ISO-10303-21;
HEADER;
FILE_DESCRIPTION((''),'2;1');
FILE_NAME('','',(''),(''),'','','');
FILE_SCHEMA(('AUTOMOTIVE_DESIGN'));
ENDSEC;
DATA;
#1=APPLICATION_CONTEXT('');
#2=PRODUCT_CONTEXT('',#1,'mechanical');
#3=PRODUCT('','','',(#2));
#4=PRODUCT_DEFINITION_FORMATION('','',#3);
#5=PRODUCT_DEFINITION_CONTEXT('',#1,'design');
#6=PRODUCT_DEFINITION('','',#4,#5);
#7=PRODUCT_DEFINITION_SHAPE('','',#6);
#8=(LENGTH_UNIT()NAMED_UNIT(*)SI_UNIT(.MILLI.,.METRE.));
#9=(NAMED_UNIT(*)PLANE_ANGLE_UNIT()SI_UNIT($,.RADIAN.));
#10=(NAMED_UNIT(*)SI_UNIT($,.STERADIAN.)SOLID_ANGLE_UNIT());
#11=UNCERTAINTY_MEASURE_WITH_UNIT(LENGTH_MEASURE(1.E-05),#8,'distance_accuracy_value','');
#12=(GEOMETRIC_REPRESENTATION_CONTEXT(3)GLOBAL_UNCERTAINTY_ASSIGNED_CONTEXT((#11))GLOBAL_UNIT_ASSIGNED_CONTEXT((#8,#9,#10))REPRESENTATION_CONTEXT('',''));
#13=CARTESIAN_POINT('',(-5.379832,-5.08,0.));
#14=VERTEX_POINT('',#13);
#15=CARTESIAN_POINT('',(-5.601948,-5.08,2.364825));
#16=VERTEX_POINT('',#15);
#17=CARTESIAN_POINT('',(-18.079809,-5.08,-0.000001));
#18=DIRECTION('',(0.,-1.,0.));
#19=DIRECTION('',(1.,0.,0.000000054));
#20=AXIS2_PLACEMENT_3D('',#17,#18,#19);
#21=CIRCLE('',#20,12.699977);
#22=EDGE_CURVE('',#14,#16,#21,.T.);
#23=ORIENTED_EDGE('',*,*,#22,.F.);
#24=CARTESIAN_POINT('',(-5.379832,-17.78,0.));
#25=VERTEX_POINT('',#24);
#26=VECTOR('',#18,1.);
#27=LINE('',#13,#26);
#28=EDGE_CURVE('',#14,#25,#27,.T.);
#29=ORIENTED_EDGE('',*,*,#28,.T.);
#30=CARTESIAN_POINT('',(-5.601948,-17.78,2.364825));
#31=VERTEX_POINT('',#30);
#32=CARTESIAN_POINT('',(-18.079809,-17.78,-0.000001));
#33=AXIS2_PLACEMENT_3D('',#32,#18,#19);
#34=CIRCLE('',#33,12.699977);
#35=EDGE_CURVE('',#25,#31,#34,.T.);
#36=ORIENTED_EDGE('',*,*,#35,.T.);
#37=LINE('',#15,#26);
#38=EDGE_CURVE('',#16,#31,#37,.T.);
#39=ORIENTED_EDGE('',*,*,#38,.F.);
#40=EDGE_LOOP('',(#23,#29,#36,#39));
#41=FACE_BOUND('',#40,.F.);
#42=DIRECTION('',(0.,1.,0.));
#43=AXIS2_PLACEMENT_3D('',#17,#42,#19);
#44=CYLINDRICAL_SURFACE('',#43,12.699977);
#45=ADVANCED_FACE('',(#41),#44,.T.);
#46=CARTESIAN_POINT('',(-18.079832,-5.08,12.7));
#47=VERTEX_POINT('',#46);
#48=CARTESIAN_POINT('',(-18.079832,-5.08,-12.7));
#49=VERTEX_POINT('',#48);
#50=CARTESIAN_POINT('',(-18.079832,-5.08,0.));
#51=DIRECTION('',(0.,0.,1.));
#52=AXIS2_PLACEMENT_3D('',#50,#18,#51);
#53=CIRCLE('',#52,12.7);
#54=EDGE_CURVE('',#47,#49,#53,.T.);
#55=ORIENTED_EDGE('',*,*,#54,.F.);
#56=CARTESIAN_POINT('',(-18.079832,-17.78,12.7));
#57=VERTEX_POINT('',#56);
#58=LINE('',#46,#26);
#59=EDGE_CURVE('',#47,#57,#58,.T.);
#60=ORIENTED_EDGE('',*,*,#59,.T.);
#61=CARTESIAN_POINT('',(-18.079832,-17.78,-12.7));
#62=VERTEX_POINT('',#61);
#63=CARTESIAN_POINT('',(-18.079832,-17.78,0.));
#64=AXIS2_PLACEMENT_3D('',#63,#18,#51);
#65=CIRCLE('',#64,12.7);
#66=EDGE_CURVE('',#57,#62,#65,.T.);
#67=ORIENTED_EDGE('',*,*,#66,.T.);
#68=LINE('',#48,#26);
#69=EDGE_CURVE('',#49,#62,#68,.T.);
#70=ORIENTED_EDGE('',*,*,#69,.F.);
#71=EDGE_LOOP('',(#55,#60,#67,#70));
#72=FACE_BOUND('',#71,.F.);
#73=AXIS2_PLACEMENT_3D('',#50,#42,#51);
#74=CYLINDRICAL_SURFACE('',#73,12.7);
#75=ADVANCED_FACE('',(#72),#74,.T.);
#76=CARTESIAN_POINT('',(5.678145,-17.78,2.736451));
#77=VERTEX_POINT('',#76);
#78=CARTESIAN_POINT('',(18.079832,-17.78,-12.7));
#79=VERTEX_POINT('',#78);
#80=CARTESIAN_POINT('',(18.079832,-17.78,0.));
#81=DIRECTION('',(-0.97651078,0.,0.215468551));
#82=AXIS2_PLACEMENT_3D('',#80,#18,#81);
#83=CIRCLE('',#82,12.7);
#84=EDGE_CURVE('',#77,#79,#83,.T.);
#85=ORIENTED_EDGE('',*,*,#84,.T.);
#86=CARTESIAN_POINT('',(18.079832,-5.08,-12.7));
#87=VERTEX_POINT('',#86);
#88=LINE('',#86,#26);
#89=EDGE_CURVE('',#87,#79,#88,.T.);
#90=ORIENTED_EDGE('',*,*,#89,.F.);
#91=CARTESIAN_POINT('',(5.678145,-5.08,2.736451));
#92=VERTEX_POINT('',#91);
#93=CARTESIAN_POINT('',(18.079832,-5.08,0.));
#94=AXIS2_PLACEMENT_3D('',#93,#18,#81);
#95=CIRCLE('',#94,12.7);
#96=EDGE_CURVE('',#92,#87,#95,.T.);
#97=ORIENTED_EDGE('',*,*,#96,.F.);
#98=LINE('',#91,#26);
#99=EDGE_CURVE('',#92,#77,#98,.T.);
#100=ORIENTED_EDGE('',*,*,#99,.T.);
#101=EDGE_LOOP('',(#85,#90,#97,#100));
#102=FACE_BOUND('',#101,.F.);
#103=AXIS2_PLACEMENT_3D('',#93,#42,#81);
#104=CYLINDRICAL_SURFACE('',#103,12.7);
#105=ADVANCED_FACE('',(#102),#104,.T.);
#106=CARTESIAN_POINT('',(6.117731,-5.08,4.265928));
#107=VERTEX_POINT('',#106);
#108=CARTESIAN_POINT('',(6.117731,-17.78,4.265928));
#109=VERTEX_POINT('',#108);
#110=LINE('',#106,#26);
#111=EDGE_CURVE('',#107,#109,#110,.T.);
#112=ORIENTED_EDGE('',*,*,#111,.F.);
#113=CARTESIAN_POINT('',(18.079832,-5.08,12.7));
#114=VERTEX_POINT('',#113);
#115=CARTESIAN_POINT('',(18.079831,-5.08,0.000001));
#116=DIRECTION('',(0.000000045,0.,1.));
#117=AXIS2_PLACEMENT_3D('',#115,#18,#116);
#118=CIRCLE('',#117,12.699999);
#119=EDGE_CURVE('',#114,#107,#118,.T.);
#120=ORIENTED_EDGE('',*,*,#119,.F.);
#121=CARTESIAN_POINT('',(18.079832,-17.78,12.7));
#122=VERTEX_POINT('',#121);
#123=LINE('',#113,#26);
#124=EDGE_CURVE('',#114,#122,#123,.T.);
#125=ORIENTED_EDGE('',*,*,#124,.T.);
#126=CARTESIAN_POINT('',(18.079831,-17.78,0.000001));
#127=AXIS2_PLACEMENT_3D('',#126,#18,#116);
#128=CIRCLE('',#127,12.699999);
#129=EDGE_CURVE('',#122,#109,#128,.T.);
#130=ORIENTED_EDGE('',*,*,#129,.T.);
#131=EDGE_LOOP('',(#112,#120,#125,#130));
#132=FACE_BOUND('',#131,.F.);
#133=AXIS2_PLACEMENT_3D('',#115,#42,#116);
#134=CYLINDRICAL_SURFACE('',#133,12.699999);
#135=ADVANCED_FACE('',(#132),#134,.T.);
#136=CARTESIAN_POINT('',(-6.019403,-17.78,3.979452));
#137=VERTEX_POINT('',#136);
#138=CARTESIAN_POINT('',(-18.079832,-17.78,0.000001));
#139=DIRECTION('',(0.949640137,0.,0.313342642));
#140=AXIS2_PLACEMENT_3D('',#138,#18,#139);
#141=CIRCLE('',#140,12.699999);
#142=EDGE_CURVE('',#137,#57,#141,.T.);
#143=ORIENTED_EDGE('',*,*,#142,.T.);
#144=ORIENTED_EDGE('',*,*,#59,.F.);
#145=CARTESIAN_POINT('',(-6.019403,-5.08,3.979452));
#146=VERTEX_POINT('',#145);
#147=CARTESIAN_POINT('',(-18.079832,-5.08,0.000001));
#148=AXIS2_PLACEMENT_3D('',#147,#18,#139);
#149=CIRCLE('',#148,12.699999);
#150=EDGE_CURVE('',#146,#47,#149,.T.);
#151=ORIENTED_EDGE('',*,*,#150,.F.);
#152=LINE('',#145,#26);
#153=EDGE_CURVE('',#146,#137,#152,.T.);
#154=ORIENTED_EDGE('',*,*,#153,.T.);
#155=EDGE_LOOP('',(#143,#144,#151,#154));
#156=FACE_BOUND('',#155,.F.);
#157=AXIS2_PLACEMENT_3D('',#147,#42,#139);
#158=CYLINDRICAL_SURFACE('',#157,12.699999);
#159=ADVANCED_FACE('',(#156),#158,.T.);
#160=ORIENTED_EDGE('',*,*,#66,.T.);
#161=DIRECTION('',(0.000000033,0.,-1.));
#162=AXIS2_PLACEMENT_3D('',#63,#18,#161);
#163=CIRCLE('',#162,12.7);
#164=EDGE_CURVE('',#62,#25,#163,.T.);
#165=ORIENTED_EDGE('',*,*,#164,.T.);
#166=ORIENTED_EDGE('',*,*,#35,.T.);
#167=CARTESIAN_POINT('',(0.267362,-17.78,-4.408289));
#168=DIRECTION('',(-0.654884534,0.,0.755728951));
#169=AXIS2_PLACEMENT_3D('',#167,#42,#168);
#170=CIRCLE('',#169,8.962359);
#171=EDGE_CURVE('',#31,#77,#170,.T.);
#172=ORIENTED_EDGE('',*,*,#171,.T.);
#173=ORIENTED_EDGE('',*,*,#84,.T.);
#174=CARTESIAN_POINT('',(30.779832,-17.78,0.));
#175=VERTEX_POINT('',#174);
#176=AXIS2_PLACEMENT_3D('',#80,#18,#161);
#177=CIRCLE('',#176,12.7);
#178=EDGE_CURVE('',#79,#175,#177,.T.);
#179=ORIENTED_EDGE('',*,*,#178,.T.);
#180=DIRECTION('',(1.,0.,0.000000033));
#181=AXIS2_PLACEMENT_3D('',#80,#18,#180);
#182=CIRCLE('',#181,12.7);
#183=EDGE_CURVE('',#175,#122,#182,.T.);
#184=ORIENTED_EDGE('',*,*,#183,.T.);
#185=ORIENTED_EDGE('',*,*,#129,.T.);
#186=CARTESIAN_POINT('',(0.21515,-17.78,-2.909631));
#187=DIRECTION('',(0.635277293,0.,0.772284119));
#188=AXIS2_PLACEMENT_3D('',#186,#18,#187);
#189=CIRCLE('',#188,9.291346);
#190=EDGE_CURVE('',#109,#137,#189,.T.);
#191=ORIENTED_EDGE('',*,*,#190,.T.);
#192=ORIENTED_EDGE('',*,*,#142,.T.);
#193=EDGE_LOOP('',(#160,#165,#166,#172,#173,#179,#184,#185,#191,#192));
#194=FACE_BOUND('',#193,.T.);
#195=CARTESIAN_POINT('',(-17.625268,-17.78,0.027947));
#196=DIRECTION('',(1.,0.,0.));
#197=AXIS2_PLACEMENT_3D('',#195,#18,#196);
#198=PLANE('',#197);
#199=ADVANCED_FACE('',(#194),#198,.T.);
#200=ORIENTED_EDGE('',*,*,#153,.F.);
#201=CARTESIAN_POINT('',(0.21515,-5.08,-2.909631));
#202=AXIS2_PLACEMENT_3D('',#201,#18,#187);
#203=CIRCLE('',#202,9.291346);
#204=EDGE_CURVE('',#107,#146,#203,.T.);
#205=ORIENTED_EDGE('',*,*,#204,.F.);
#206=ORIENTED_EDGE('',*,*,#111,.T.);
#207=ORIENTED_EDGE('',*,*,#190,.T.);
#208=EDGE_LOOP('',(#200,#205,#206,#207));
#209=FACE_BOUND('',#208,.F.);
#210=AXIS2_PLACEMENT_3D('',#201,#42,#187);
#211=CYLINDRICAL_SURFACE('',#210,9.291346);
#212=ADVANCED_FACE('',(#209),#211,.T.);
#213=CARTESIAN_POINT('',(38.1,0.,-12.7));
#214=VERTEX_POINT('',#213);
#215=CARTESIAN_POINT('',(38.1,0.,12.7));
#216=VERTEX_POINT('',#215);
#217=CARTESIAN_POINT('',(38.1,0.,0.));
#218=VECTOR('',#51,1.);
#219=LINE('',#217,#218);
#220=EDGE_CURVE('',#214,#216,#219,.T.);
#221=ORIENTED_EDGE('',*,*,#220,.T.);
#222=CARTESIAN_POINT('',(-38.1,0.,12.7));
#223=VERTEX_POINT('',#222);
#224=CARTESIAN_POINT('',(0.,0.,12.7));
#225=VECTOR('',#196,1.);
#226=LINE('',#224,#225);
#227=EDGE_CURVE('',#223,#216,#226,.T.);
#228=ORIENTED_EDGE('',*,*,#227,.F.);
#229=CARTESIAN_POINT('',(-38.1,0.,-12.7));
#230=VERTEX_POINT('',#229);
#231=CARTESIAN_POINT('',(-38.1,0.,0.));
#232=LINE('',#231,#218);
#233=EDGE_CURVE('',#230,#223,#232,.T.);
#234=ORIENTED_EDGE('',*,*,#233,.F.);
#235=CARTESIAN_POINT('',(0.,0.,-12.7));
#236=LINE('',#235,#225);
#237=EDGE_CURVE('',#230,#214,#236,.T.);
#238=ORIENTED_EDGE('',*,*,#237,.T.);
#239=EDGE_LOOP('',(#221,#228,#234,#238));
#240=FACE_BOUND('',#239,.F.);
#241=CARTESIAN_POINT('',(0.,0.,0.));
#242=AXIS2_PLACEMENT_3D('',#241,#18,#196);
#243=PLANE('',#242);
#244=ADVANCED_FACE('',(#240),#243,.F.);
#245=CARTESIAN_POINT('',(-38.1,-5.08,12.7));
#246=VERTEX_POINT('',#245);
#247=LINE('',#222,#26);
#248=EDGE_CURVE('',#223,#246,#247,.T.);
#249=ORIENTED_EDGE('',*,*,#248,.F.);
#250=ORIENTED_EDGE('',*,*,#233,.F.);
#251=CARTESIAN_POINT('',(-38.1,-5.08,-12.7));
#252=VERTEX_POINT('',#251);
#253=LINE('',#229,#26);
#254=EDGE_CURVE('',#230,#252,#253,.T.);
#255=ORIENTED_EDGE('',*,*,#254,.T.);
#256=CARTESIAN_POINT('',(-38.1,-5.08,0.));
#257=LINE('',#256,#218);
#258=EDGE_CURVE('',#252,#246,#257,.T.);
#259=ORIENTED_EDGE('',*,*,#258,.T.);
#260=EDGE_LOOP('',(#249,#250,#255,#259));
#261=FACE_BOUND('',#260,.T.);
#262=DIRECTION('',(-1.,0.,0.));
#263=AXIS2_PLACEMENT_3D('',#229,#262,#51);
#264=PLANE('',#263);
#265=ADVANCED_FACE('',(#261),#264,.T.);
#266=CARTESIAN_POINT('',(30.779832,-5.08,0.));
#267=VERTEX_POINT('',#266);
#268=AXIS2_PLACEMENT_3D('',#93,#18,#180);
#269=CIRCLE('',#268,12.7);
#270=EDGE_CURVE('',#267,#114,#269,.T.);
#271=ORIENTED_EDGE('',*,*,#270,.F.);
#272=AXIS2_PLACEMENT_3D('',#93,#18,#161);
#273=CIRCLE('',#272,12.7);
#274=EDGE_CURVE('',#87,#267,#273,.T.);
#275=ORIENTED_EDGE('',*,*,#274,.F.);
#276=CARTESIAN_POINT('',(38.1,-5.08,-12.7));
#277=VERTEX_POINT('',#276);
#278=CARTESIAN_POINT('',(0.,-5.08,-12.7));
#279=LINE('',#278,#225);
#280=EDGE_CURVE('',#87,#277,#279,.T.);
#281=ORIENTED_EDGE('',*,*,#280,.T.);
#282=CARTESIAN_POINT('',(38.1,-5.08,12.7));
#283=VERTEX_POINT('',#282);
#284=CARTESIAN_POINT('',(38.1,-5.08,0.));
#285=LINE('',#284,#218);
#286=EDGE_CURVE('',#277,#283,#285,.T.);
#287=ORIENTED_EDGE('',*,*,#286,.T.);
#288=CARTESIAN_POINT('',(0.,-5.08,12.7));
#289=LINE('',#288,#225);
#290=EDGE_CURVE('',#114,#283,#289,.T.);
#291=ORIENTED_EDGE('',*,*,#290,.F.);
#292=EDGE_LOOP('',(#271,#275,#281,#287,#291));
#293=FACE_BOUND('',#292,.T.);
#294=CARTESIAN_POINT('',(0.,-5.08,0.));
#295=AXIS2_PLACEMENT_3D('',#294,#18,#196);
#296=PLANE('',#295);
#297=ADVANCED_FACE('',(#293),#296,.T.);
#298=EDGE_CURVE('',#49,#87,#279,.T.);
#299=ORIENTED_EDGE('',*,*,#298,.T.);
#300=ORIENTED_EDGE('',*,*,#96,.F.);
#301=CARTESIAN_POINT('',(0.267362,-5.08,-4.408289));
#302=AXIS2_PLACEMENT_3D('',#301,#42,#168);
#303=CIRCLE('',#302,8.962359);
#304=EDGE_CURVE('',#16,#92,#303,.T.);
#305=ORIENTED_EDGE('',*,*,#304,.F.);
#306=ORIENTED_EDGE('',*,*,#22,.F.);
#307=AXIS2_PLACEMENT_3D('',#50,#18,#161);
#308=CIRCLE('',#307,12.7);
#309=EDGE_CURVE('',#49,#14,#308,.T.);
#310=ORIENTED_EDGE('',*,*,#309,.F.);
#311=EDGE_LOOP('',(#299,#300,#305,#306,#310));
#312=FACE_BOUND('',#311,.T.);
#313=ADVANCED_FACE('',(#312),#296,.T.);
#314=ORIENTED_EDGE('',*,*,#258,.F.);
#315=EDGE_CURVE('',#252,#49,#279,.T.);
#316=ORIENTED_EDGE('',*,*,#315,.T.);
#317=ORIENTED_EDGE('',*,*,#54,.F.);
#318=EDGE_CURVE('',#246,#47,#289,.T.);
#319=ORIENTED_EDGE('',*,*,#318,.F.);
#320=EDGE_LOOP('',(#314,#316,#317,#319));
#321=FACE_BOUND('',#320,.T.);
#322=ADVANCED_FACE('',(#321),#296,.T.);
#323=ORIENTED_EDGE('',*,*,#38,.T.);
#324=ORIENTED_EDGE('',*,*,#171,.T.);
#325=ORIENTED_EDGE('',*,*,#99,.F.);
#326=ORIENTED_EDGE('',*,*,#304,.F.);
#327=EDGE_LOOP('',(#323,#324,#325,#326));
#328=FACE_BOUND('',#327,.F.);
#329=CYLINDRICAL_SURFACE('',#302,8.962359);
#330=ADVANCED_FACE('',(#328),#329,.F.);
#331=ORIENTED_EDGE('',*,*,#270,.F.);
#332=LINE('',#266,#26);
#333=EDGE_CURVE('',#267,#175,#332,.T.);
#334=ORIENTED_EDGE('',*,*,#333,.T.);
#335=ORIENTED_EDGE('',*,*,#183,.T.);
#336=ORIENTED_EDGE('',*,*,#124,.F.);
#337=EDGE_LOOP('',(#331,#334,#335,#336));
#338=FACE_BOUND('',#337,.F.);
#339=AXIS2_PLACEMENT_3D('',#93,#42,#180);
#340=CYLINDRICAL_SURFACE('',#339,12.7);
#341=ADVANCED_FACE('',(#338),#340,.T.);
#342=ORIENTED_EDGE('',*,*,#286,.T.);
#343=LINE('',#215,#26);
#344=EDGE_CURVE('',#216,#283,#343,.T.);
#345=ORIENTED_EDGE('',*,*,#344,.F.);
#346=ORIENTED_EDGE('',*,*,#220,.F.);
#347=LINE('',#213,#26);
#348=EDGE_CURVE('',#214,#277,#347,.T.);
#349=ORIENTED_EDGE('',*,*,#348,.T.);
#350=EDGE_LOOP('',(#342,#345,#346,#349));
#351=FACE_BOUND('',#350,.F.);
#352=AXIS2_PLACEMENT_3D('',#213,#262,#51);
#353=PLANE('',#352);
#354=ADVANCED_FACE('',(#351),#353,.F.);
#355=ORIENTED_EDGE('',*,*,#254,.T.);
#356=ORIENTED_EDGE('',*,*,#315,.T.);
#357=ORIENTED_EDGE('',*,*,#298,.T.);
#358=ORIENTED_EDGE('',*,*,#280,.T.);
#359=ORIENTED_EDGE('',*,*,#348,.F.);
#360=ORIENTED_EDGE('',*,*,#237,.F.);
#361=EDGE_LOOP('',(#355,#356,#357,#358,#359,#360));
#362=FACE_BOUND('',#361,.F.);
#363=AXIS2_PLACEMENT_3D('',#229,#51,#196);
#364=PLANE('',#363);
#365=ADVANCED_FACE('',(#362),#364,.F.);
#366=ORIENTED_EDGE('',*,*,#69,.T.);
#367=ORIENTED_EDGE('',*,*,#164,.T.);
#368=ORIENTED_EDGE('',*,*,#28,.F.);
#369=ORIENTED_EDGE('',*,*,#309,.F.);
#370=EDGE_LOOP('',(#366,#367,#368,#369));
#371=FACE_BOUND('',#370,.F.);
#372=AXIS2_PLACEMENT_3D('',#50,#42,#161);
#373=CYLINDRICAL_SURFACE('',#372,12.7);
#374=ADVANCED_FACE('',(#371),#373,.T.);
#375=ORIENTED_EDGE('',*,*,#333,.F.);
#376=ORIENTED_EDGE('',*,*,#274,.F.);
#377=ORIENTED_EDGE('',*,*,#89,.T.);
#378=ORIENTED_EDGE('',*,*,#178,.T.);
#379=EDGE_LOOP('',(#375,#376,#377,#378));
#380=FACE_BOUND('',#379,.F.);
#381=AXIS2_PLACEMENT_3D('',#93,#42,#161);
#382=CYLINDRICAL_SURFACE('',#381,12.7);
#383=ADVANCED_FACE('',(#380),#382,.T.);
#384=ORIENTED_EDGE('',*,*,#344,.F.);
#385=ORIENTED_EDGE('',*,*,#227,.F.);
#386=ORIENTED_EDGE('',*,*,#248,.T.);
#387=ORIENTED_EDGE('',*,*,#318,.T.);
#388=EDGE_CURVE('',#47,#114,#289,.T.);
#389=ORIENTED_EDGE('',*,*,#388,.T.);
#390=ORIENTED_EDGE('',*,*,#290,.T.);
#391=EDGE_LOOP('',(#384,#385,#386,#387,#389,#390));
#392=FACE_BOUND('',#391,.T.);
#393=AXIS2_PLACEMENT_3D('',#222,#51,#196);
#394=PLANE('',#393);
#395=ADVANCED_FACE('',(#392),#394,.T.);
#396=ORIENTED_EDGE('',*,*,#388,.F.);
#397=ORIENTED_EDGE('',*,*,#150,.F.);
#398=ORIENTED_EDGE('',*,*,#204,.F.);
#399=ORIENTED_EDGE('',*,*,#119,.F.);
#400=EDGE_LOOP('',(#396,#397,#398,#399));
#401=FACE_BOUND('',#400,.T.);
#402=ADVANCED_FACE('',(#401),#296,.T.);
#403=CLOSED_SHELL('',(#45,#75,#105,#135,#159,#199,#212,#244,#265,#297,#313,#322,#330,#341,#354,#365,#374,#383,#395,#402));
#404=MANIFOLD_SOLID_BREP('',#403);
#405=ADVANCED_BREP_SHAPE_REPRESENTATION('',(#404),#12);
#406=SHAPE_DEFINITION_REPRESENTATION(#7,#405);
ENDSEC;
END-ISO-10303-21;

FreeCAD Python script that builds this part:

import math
import FreeCAD as App
import Part
import Sketcher

V = App.Vector
Q = App.Units.Quantity


def add_polygon(sketch, points):
    """Adds a closed chain of lines whose ends are joined by coincident constraints."""
    first, n = sketch.GeometryCount, len(points)
    for a, b in zip(points, points[1:] + points[:1]):
        sketch.addGeometry(Part.LineSegment(App.Vector(*a, 0), App.Vector(*b, 0)), False)
    for i in range(n):
        sketch.addConstraint(Sketcher.Constraint("Coincident", first + i, 2, first + (i + 1) % n, 1))

doc = App.newDocument("Part")
body = doc.addObject("PartDesign::Body", "Body")

# Sketch on XZ plane
sketch1 = body.newObject("Sketcher::SketchObject", "Sketch")
sketch1.AttachmentSupport = (doc.getObject("XZ_Plane"), [""])
sketch1.MapMode = "FlatFace"
add_polygon(sketch1, [(-38, 13), (-38, -13), (38, -13), (38, 13)])  # lines 0-3
sketch1.addConstraint([
    Sketcher.Constraint("Vertical", 0),
    Sketcher.Constraint("Horizontal", 1),
    Sketcher.Constraint("Vertical", 2),
    Sketcher.Constraint("Horizontal", 3),
    Sketcher.Constraint("Symmetric", 0, 2, 2, 2, -1, 1),
    Sketcher.Constraint("DistanceX", 1, 1, 1, 2, Q("3 in")),
    Sketcher.Constraint("DistanceY", 0, 2, 0, 1, Q("1 in")),
])
pad1 = body.newObject("PartDesign::Pad", "Pad")
pad1.Profile = sketch1
pad1.Length = Q("0.2 in")

# Sketch on XZ plane
sketch2 = body.newObject("Sketcher::SketchObject", "Sketch001")
sketch2.AttachmentSupport = (doc.getObject("XZ_Plane"), [""])
sketch2.MapMode = "FlatFace"
sketch2.AttachmentOffset = App.Placement(V(0, 0, 0.2 * 25.4), App.Rotation())
sketch2.addGeometry([
    Part.ArcOfCircle(Part.Circle(V(-18.1, 0, 0), V(0, 0, 1), 12.7), math.radians(-90), math.radians(0)),  # 0
    Part.ArcOfCircle(Part.Circle(V(-18.1, 0, 0), V(0, 0, 1), 12.7), math.radians(0), math.radians(10.73)),  # 1
    Part.ArcOfCircle(Part.Circle(V(0.3, -4.4, 0), V(0, 0, 1), 9), math.radians(53), math.radians(131)),  # 2
    Part.ArcOfCircle(Part.Circle(V(18.1, 0, 0), V(0, 0, 1), 12.7), math.radians(168), math.radians(270)),  # 3
    Part.ArcOfCircle(Part.Circle(V(18.1, 0, 0), V(0, 0, 1), 12.7), math.radians(-90), math.radians(0)),  # 4
    Part.ArcOfCircle(Part.Circle(V(18.1, 0, 0), V(0, 0, 1), 12.7), math.radians(0), math.radians(90)),  # 5
    Part.ArcOfCircle(Part.Circle(V(18.1, 0, 0), V(0, 0, 1), 12.7), math.radians(90), math.radians(160)),  # 6
    Part.ArcOfCircle(Part.Circle(V(0.2, -2.9, 0), V(0, 0, 1), 9.3), math.radians(51), math.radians(132)),  # 7
    Part.ArcOfCircle(Part.Circle(V(-18.1, 0, 0), V(0, 0, 1), 12.7), math.radians(18), math.radians(90)),  # 8
    Part.ArcOfCircle(Part.Circle(V(-18.1, 0, 0), V(0, 0, 1), 12.7), math.radians(90), math.radians(270)),  # 9
], False)
sketch2.addConstraint([
    Sketcher.Constraint("Tangent", 0, 2, 1, 1),
    Sketcher.Constraint("Coincident", 1, 2, 2, 2),
    Sketcher.Constraint("Coincident", 2, 1, 3, 1),
    Sketcher.Constraint("Tangent", 3, 2, 4, 1),
    Sketcher.Constraint("Tangent", 4, 2, 5, 1),
    Sketcher.Constraint("Tangent", 5, 2, 6, 1),
    Sketcher.Constraint("Coincident", 6, 2, 7, 1),
    Sketcher.Constraint("Coincident", 7, 2, 8, 1),
    Sketcher.Constraint("Tangent", 8, 2, 9, 1),
    Sketcher.Constraint("Tangent", 9, 2, 0, 1),
    Sketcher.Constraint("Coincident", 5, 3, 3, 3),
    Sketcher.Constraint("Equal", 0, 3),
    Sketcher.Constraint("Equal", 5, 6),
    Sketcher.Constraint("Equal", 6, 8),
    Sketcher.Constraint("Equal", 8, 9),
    Sketcher.Constraint("Symmetric", 0, 3, 3, 3, -1, 1),
    Sketcher.Constraint("Symmetric", 5, 2, 8, 2, -2),
    Sketcher.Constraint("PointOnObject", 0, 2, -1),
    Sketcher.Constraint("PointOnObject", 4, 2, -1),
    Sketcher.Constraint("Vertical", 6, 3, 3, 2),
    Sketcher.Constraint("Vertical", 3, 2, 5, 2),
    Sketcher.Constraint("Vertical", 8, 2, 9, 2),
    Sketcher.Constraint("Radius", 0, Q("0.5 in")),
    Sketcher.Constraint("Radius", 2, 8.962359),
    Sketcher.Constraint("Radius", 1, 12.699977),
    Sketcher.Constraint("Radius", 7, 9.291346),
    Sketcher.Constraint("DistanceY", 2, 1, 7, 2, 1.243001),
    Sketcher.Constraint("DistanceX", 1, 3, -1, 1, 18.079809),
    Sketcher.Constraint("DistanceY", 2, 3, -1, 1, 4.408289),
    Sketcher.Constraint("DistanceX", -1, 1, 7, 3, 0.21515),
    Sketcher.Constraint("DistanceY", 7, 3, -1, 1, 2.909631),
])
pad2 = body.newObject("PartDesign::Pad", "Pad001")
pad2.Profile = sketch2
pad2.Length = Q("0.5 in")

doc.recompute()
